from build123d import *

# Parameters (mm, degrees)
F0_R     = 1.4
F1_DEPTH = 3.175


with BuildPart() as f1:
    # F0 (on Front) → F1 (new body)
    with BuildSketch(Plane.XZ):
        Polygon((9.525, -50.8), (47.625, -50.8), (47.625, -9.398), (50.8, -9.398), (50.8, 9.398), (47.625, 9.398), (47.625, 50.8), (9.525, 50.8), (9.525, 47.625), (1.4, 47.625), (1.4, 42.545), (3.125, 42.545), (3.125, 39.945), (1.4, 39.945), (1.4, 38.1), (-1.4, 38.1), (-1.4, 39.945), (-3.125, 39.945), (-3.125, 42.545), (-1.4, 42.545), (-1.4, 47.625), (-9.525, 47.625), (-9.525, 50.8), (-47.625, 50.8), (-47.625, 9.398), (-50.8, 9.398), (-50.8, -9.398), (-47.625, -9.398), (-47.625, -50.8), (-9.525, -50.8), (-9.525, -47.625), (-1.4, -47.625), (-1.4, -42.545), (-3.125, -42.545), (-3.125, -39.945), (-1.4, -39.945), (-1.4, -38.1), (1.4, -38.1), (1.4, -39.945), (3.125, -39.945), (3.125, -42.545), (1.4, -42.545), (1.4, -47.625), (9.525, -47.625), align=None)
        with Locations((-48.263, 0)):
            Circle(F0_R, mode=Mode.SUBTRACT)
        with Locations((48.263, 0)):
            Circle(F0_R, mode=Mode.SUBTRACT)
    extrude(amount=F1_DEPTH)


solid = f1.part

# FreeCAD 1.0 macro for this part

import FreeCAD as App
import Part
import Sketcher
from FreeCAD import Vector
Q = App.Units.Quantity


def add_polygon(sketch, points):
    """Adds a closed chain of lines whose ends are joined by coincident constraints."""
    first, n = sketch.GeometryCount, len(points)
    for a, b in zip(points, points[1:] + points[:1]):
        sketch.addGeometry(Part.LineSegment(App.Vector(*a, 0), App.Vector(*b, 0)), False)
    for i in range(n):
        sketch.addConstraint(Sketcher.Constraint("Coincident", first + i, 2, first + (i + 1) % n, 1))

doc = App.newDocument("Part")
body = doc.addObject("PartDesign::Body", "Body")

# Sketch on XZ plane
sketch1 = body.newObject("Sketcher::SketchObject", "Sketch")
sketch1.AttachmentSupport = (doc.getObject("XZ_Plane"), [""])
sketch1.MapMode = "FlatFace"
add_polygon(sketch1, [(9.525, -50.8), (47.625, -50.8), (47.625, -9.398), (50.8, -9.398), (50.8, 9.398), (47.625, 9.398), (47.625, 50.8), (9.525, 50.8), (9.525, 47.625), (1.4, 47.625), (1.4, 42.545), (3.125, 42.545), (3.125, 39.945), (1.4, 39.945), (1.4, 38.1), (-1.4, 38.1), (-1.4, 39.945), (-3.125, 39.945), (-3.125, 42.545), (-1.4, 42.545), (-1.4, 47.625), (-9.525, 47.625), (-9.525, 50.8), (-47.625, 50.8), (-47.625, 9.398), (-50.8, 9.398), (-50.8, -9.398), (-47.625, -9.398), (-47.625, -50.8), (-9.525, -50.8), (-9.525, -47.625), (-1.4, -47.625), (-1.4, -42.545), (-3.125, -42.545), (-3.125, -39.945), (-1.4, -39.945), (-1.4, -38.1), (1.4, -38.1), (1.4, -39.945), (3.125, -39.945), (3.125, -42.545), (1.4, -42.545), (1.4, -47.625), (9.525, -47.625)])  # lines 0-43
sketch1.addGeometry(Part.Circle(Vector(-48.263, 0, 0), Vector(0, 0, 1), 1.4), False)  # 44
sketch1.addGeometry(Part.Circle(Vector(48.263, 0, 0), Vector(0, 0, 1), 1.4), False)  # 45
sketch1.addConstraint(Sketcher.Constraint("Horizontal", 0))
sketch1.addConstraint(Sketcher.Constraint("Vertical", 1))
sketch1.addConstraint(Sketcher.Constraint("Horizontal", 2))
sketch1.addConstraint(Sketcher.Constraint("Vertical", 3))
sketch1.addConstraint(Sketcher.Constraint("Horizontal", 4))
sketch1.addConstraint(Sketcher.Constraint("Vertical", 5))
sketch1.addConstraint(Sketcher.Constraint("Horizontal", 6))
sketch1.addConstraint(Sketcher.Constraint("Vertical", 7))
sketch1.addConstraint(Sketcher.Constraint("Horizontal", 8))
sketch1.addConstraint(Sketcher.Constraint("Vertical", 9))
sketch1.addConstraint(Sketcher.Constraint("Horizontal", 10))
sketch1.addConstraint(Sketcher.Constraint("Vertical", 11))
sketch1.addConstraint(Sketcher.Constraint("Horizontal", 12))
sketch1.addConstraint(Sketcher.Constraint("Vertical", 13))
sketch1.addConstraint(Sketcher.Constraint("Horizontal", 14))
sketch1.addConstraint(Sketcher.Constraint("Vertical", 15))
sketch1.addConstraint(Sketcher.Constraint("Horizontal", 16))
sketch1.addConstraint(Sketcher.Constraint("Vertical", 17))
sketch1.addConstraint(Sketcher.Constraint("Horizontal", 18))
sketch1.addConstraint(Sketcher.Constraint("Vertical", 19))
sketch1.addConstraint(Sketcher.Constraint("Horizontal", 20))
sketch1.addConstraint(Sketcher.Constraint("Vertical", 21))
sketch1.addConstraint(Sketcher.Constraint("Horizontal", 22))
sketch1.addConstraint(Sketcher.Constraint("Vertical", 23))
sketch1.addConstraint(Sketcher.Constraint("Horizontal", 24))
sketch1.addConstraint(Sketcher.Constraint("Vertical", 25))
sketch1.addConstraint(Sketcher.Constraint("Horizontal", 26))
sketch1.addConstraint(Sketcher.Constraint("Vertical", 27))
sketch1.addConstraint(Sketcher.Constraint("Horizontal", 28))
sketch1.addConstraint(Sketcher.Constraint("Vertical", 29))
sketch1.addConstraint(Sketcher.Constraint("Horizontal", 30))
sketch1.addConstraint(Sketcher.Constraint("Vertical", 31))
sketch1.addConstraint(Sketcher.Constraint("Horizontal", 32))
sketch1.addConstraint(Sketcher.Constraint("Vertical", 33))
sketch1.addConstraint(Sketcher.Constraint("Horizontal", 34))
sketch1.addConstraint(Sketcher.Constraint("Vertical", 35))
sketch1.addConstraint(Sketcher.Constraint("Horizontal", 36))
sketch1.addConstraint(Sketcher.Constraint("Vertical", 37))
sketch1.addConstraint(Sketcher.Constraint("Horizontal", 38))
sketch1.addConstraint(Sketcher.Constraint("Vertical", 39))
sketch1.addConstraint(Sketcher.Constraint("Horizontal", 40))
sketch1.addConstraint(Sketcher.Constraint("Vertical", 41))
sketch1.addConstraint(Sketcher.Constraint("Horizontal", 42))
sketch1.addConstraint(Sketcher.Constraint("Vertical", 43))
sketch1.addConstraint(Sketcher.Constraint("Equal", 44, 45))
sketch1.addConstraint(Sketcher.Constraint("Symmetric", 44, 3, 45, 3, -1, 1))
sketch1.addConstraint(Sketcher.Constraint("Symmetric", 0, 2, 22, 2, -1, 1))
sketch1.addConstraint(Sketcher.Constraint("Symmetric", 2, 2, 24, 2, -1, 1))
sketch1.addConstraint(Sketcher.Constraint("Symmetric", 4, 2, 26, 2, -1, 1))
sketch1.addConstraint(Sketcher.Constraint("Symmetric", 6, 2, 28, 2, -1, 1))
sketch1.addConstraint(Sketcher.Constraint("Symmetric", 8, 2, 30, 2, -1, 1))
sketch1.addConstraint(Sketcher.Constraint("Symmetric", 10, 2, 32, 2, -1, 1))
sketch1.addConstraint(Sketcher.Constraint("Symmetric", 12, 2, 34, 2, -1, 1))
sketch1.addConstraint(Sketcher.Constraint("Symmetric", 14, 2, 36, 2, -1, 1))
sketch1.addConstraint(Sketcher.Constraint("Symmetric", 16, 2, 38, 2, -1, 1))
sketch1.addConstraint(Sketcher.Constraint("Symmetric", 18, 2, 40, 2, -1, 1))
sketch1.addConstraint(Sketcher.Constraint("Symmetric", 20, 2, 42, 2, -1, 1))
sketch1.addConstraint(Sketcher.Constraint("Symmetric", 12, 2, 15, 2, -2))
sketch1.addConstraint(Sketcher.Constraint("Symmetric", 10, 2, 17, 2, -2))
sketch1.addConstraint(Sketcher.Constraint("Symmetric", 8, 2, 19, 2, -2))
sketch1.addConstraint(Sketcher.Constraint("Symmetric", 6, 2, 21, 2, -2))
sketch1.addConstraint(Sketcher.Constraint("Symmetric", 4, 2, 23, 2, -2))
sketch1.addConstraint(Sketcher.Constraint("PointOnObject", 44, 3, -1))
sketch1.addConstraint(Sketcher.Constraint("Vertical", 9, 2, 12, 2))
sketch1.addConstraint(Sketcher.Constraint("Equal", 26, 7))
sketch1.addConstraint(Sketcher.Constraint("DistanceX", 0, 1, 0, 2, Q("1.5 in")))
sketch1.addConstraint(Sketcher.Constraint("DistanceY", 9, 2, 9, 1, Q("0.2 in")))
sketch1.addConstraint(Sketcher.Constraint("DistanceY", 0, 2, -1, 1, Q("2 in")))
sketch1.addConstraint(Sketcher.Constraint("DistanceX", -1, 1, 2, 2, Q("2 in")))
sketch1.addConstraint(Sketcher.Constraint("DistanceY", 1, 1, 1, 2, Q("1.63 in")))
sketch1.addConstraint(Sketcher.Constraint("DistanceY", -1, 1, 13, 2, Q("1.5 in")))
sketch1.addConstraint(Sketcher.Constraint("Diameter", 44, 2.8))
sketch1.addConstraint(Sketcher.Constraint("DistanceX", 2, 1, 2, 2, Q("0.125 in")))
sketch1.addConstraint(Sketcher.Constraint("DistanceX", 8, 2, 8, 1, 8.125))
sketch1.addConstraint(Sketcher.Constraint("DistanceX", 10, 1, 10, 2, 1.725))
sketch1.addConstraint(Sketcher.Constraint("DistanceY", 11, 2, 11, 1, 2.6))
sketch1.addConstraint(Sketcher.Constraint("DistanceX", 44, 3, -1, 1, 48.263))
pad1 = body.newObject("PartDesign::Pad", "Pad")
pad1.Profile = sketch1
pad1.Length = Q("0.125 in")

doc.recompute()
